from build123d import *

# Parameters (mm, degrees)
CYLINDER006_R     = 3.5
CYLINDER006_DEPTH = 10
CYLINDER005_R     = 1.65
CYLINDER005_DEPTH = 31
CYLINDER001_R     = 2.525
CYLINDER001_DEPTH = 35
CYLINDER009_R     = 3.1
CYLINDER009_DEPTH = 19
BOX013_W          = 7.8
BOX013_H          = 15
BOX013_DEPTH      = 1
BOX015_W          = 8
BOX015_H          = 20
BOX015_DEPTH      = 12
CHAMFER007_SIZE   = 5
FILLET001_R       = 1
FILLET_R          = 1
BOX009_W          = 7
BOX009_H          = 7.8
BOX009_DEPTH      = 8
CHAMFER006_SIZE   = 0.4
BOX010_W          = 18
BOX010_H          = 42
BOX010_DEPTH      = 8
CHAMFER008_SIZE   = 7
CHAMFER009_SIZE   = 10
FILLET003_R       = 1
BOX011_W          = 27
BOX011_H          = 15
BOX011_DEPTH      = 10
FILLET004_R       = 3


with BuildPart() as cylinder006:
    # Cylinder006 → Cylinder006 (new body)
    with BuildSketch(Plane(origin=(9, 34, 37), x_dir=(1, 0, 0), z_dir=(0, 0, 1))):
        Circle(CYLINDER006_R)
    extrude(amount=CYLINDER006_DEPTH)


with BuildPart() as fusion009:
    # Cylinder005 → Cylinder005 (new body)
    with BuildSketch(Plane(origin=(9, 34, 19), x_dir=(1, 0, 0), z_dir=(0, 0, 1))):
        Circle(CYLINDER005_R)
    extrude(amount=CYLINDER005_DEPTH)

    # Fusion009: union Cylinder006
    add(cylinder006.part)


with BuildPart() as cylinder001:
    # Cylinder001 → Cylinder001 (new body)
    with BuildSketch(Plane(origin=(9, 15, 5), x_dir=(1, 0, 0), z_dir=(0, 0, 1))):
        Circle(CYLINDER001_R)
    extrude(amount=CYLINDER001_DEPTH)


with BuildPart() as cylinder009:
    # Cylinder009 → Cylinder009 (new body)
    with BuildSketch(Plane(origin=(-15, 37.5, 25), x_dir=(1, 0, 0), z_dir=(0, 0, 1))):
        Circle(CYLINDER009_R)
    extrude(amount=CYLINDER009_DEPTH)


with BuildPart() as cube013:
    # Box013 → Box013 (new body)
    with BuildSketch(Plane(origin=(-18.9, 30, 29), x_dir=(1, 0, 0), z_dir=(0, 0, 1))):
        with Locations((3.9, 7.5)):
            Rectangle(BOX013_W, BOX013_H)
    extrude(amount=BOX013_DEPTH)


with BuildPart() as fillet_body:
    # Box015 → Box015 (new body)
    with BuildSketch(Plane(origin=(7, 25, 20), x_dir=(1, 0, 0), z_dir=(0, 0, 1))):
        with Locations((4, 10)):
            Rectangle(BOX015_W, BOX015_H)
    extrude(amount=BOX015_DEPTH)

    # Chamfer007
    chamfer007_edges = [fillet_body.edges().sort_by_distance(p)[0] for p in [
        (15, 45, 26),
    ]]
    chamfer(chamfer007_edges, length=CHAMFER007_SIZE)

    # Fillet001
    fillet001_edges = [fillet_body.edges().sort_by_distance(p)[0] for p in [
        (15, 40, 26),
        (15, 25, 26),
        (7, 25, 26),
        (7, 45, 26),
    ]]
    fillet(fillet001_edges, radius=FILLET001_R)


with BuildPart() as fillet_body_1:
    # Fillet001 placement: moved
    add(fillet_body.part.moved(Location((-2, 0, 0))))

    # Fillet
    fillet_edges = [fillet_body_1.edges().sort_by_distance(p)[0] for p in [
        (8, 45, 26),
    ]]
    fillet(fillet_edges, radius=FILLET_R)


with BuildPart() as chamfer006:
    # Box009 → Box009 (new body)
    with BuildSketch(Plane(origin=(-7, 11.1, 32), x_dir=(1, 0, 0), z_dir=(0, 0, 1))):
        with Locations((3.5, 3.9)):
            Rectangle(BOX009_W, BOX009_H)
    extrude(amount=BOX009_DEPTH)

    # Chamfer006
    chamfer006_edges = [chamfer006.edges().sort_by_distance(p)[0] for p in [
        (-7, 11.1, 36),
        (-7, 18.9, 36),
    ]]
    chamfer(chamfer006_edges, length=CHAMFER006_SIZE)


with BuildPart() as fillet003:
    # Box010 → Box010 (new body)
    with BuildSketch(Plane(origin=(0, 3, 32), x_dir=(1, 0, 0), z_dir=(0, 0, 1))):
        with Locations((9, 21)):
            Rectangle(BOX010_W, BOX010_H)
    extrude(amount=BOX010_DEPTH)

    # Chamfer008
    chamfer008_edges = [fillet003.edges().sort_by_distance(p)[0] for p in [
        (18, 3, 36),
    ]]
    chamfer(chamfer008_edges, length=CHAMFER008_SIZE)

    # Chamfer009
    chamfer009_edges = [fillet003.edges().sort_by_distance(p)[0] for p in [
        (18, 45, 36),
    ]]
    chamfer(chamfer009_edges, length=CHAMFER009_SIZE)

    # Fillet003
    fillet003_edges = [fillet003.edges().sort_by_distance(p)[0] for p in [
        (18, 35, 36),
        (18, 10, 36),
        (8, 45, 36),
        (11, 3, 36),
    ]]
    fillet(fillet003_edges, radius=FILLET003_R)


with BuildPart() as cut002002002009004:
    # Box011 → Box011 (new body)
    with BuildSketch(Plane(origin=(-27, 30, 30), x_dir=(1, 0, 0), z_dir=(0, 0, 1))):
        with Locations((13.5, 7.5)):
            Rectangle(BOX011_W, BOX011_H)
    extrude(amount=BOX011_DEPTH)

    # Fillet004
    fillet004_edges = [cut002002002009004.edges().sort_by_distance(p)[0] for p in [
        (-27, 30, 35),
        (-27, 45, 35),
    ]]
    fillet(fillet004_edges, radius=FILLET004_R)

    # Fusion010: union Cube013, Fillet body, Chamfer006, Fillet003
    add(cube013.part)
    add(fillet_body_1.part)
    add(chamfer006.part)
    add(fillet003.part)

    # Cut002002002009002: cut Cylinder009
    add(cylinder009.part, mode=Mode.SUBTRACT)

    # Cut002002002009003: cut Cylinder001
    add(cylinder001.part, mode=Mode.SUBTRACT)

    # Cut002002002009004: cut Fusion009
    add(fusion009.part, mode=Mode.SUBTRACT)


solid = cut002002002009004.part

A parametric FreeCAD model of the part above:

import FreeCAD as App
import Part
import Sketcher

V = App.Vector


def edges_at(feature, points):
    """Names of the edges that pass closest to the given points."""
    edges = feature.Shape.Edges
    near = lambda p: min(range(len(edges)), key=lambda i: edges[i].distToShape(Part.Vertex(*p))[0])
    return sorted({f"Edge{near(p) + 1}" for p in points})


def add_polygon(sketch, points):
    """Adds a closed chain of lines whose ends are joined by coincident constraints."""
    first, n = sketch.GeometryCount, len(points)
    for a, b in zip(points, points[1:] + points[:1]):
        sketch.addGeometry(Part.LineSegment(App.Vector(*a, 0), App.Vector(*b, 0)), False)
    for i in range(n):
        sketch.addConstraint(Sketcher.Constraint("Coincident", first + i, 2, first + (i + 1) % n, 1))

doc = App.newDocument("Part")
params = doc.addObject("Spreadsheet::Sheet", "Params")
for row, (alias, value) in enumerate([
    ("sketch1_diameter", "7 mm"),
    ("pad1_length", "10 mm"),
    ("sketch2_diameter", "3.3 mm"),
    ("pad2_length", "31 mm"),
    ("sketch3_diameter", "5.05 mm"),
    ("pad3_length", "35 mm"),
    ("sketch4_diameter", "6.2 mm"),
    ("pad4_length", "19 mm"),
    ("sketch5_height", "15 mm"),
    ("sketch5_width", "7.8 mm"),
    ("pad5_length", "1 mm"),
    ("sketch6_width", "8 mm"),
    ("sketch6_height", "20 mm"),
    ("pad6_length", "12 mm"),
    ("chamfer_size", "5 mm"),
    ("fillet_radius", "1 mm"),
    ("fillet2_radius", "1 mm"),
    ("sketch7_width", "7 mm"),
    ("sketch7_height", "7.8 mm"),
    ("pad7_length", "8 mm"),
    ("chamfer2_size", "0.4 mm"),
    ("sketch8_width", "18 mm"),
    ("sketch8_height", "42 mm"),
    ("pad8_length", "8 mm"),
    ("chamfer3_size", "7 mm"),
    ("chamfer4_size", "10 mm"),
    ("fillet3_radius", "1 mm"),
    ("sketch9_width", "27 mm"),
    ("sketch9_height", "15 mm"),
    ("pad9_length", "10 mm"),
    ("fillet4_radius", "3 mm"),
], start=1):
    params.set(f"A{row}", alias)
    params.set(f"B{row}", "=" + value)
    params.setAlias(f"B{row}", alias)

body = doc.addObject("PartDesign::Body", "Body")

sketch1 = body.newObject("Sketcher::SketchObject", "Sketch")
sketch1.AttachmentSupport = (doc.getObject("XY_Plane"), [""])
sketch1.MapMode = "FlatFace"
sketch1.AttachmentOffset = App.Placement(V(0, 0, 37), App.Rotation())
sketch1.addGeometry(Part.Circle(V(9, 34, 0), V(0, 0, 1), 3.5), False)
sketch1.addConstraint(Sketcher.Constraint("Diameter", 0, 7.0))
sketch1.addConstraint(Sketcher.Constraint("DistanceX", -1, 1, 0, 3, 9.0))
sketch1.addConstraint(Sketcher.Constraint("DistanceY", -1, 1, 0, 3, 34.0))
sketch1.setExpression("Constraints[0]", "Params.sketch1_diameter")
pad1 = body.newObject("PartDesign::Pad", "Pad")
pad1.Profile = sketch1
pad1.setExpression("Length", "Params.pad1_length")
body2 = doc.addObject("PartDesign::Body", "Body001")

sketch2 = body2.newObject("Sketcher::SketchObject", "Sketch001")
sketch2.AttachmentSupport = (doc.getObject("XY_Plane001"), [""])
sketch2.MapMode = "FlatFace"
sketch2.AttachmentOffset = App.Placement(V(0, 0, 19), App.Rotation())
sketch2.addGeometry(Part.Circle(V(9, 34, 0), V(0, 0, 1), 1.6), False)
sketch2.addConstraint(Sketcher.Constraint("Diameter", 0, 3.3))
sketch2.addConstraint(Sketcher.Constraint("DistanceX", -1, 1, 0, 3, 9.0))
sketch2.addConstraint(Sketcher.Constraint("DistanceY", -1, 1, 0, 3, 34.0))
sketch2.setExpression("Constraints[0]", "Params.sketch2_diameter")
pad2 = body2.newObject("PartDesign::Pad", "Pad001")
pad2.Profile = sketch2
pad2.setExpression("Length", "Params.pad2_length")
doc.recompute()

boolean = body2.newObject("PartDesign::Boolean", "Boolean")
boolean.Type = "Fuse"
boolean.addObjects([body])
body3 = doc.addObject("PartDesign::Body", "Body002")

sketch3 = body3.newObject("Sketcher::SketchObject", "Sketch002")
sketch3.AttachmentSupport = (doc.getObject("XY_Plane002"), [""])
sketch3.MapMode = "FlatFace"
sketch3.AttachmentOffset = App.Placement(V(0, 0, 5), App.Rotation())
sketch3.addGeometry(Part.Circle(V(9, 15, 0), V(0, 0, 1), 2.5), False)
sketch3.addConstraint(Sketcher.Constraint("Diameter", 0, 5.05))
sketch3.addConstraint(Sketcher.Constraint("DistanceX", -1, 1, 0, 3, 9.0))
sketch3.addConstraint(Sketcher.Constraint("DistanceY", -1, 1, 0, 3, 15.0))
sketch3.setExpression("Constraints[0]", "Params.sketch3_diameter")
pad3 = body3.newObject("PartDesign::Pad", "Pad002")
pad3.Profile = sketch3
pad3.setExpression("Length", "Params.pad3_length")
body4 = doc.addObject("PartDesign::Body", "Body003")

sketch4 = body4.newObject("Sketcher::SketchObject", "Sketch003")
sketch4.AttachmentSupport = (doc.getObject("XY_Plane003"), [""])
sketch4.MapMode = "FlatFace"
sketch4.AttachmentOffset = App.Placement(V(0, 0, 25), App.Rotation())
sketch4.addGeometry(Part.Circle(V(-15, 37.5, 0), V(0, 0, 1), 3.1), False)
sketch4.addConstraint(Sketcher.Constraint("Diameter", 0, 6.2))
sketch4.addConstraint(Sketcher.Constraint("DistanceX", 0, 3, -1, 1, 15.0))
sketch4.addConstraint(Sketcher.Constraint("DistanceY", -1, 1, 0, 3, 37.5))
sketch4.setExpression("Constraints[0]", "Params.sketch4_diameter")
pad4 = body4.newObject("PartDesign::Pad", "Pad003")
pad4.Profile = sketch4
pad4.setExpression("Length", "Params.pad4_length")
body5 = doc.addObject("PartDesign::Body", "Body004")

sketch5 = body5.newObject("Sketcher::SketchObject", "Sketch004")
sketch5.AttachmentSupport = (doc.getObject("XY_Plane004"), [""])
sketch5.MapMode = "FlatFace"
sketch5.AttachmentOffset = App.Placement(V(0, 0, 29), App.Rotation())
add_polygon(sketch5, [(-19, 45), (-19, 30), (-11, 30), (-11, 45)])
sketch5.addConstraint(Sketcher.Constraint("Vertical", 0))
sketch5.addConstraint(Sketcher.Constraint("Horizontal", 1))
sketch5.addConstraint(Sketcher.Constraint("Vertical", 2))
sketch5.addConstraint(Sketcher.Constraint("Horizontal", 3))
sketch5.addConstraint(Sketcher.Constraint("DistanceY", 0, 2, 0, 1, 15.0))
sketch5.addConstraint(Sketcher.Constraint("DistanceX", 1, 1, 1, 2, 7.8))
sketch5.addConstraint(Sketcher.Constraint("DistanceY", -1, 1, 0, 2, 30.0))
sketch5.addConstraint(Sketcher.Constraint("DistanceX", 0, 2, -1, 1, 18.9))
sketch5.setExpression("Constraints[8]", "Params.sketch5_height")
sketch5.setExpression("Constraints[9]", "Params.sketch5_width")
pad5 = body5.newObject("PartDesign::Pad", "Pad004")
pad5.Profile = sketch5
pad5.setExpression("Length", "Params.pad5_length")
body6 = doc.addObject("PartDesign::Body", "Body005")

sketch6 = body6.newObject("Sketcher::SketchObject", "Sketch005")
sketch6.AttachmentSupport = (doc.getObject("XY_Plane005"), [""])
sketch6.MapMode = "FlatFace"
sketch6.AttachmentOffset = App.Placement(V(0, 0, 20), App.Rotation())
add_polygon(sketch6, [(7, 45), (7, 25), (15, 25), (15, 45)])
sketch6.addConstraint(Sketcher.Constraint("Vertical", 0))
sketch6.addConstraint(Sketcher.Constraint("Horizontal", 1))
sketch6.addConstraint(Sketcher.Constraint("Vertical", 2))
sketch6.addConstraint(Sketcher.Constraint("Horizontal", 3))
sketch6.addConstraint(Sketcher.Constraint("DistanceX", 1, 1, 1, 2, 8.0))
sketch6.addConstraint(Sketcher.Constraint("DistanceY", 0, 2, 0, 1, 20.0))
sketch6.addConstraint(Sketcher.Constraint("DistanceX", -1, 1, 0, 2, 7.0))
sketch6.addConstraint(Sketcher.Constraint("DistanceY", -1, 1, 0, 2, 25.0))
sketch6.setExpression("Constraints[8]", "Params.sketch6_width")
sketch6.setExpression("Constraints[9]", "Params.sketch6_height")
pad6 = body6.newObject("PartDesign::Pad", "Pad005")
pad6.Profile = sketch6
pad6.setExpression("Length", "Params.pad6_length")
doc.recompute()

chamfer = body6.newObject("PartDesign::Chamfer", "Chamfer")
chamfer.Base = (pad6, edges_at(pad6, [(15, 45, 26)]))
chamfer.setExpression("Size", "Params.chamfer_size")
doc.recompute()

fillet = body6.newObject("PartDesign::Fillet", "Fillet")
fillet.Base = (chamfer, edges_at(chamfer, [
    (15, 40, 26),
    (15, 25, 26),
    (7, 25, 26),
    (7, 45, 26),
]))
fillet.setExpression("Radius", "Params.fillet_radius")
body7 = doc.addObject("PartDesign::Body", "Body006")
doc.recompute()

body6.Placement = App.Placement(V(-2, 0, 0), App.Rotation(V(0, 0, 1), 0))
boolean2 = body7.newObject("PartDesign::Boolean", "Boolean001")
boolean2.Type = "Fuse"
boolean2.addObjects([body6])
doc.recompute()

fillet2 = body7.newObject("PartDesign::Fillet", "Fillet001")
fillet2.Base = (boolean2, edges_at(boolean2, [(8, 45, 26)]))
fillet2.setExpression("Radius", "Params.fillet2_radius")
body8 = doc.addObject("PartDesign::Body", "Body007")

sketch7 = body8.newObject("Sketcher::SketchObject", "Sketch006")
sketch7.AttachmentSupport = (doc.getObject("XY_Plane007"), [""])
sketch7.MapMode = "FlatFace"
sketch7.AttachmentOffset = App.Placement(V(0, 0, 32), App.Rotation())
add_polygon(sketch7, [(-7, 19), (-7, 11), (0, 11), (0, 19)])
sketch7.addConstraint(Sketcher.Constraint("Vertical", 0))
sketch7.addConstraint(Sketcher.Constraint("Horizontal", 1))
sketch7.addConstraint(Sketcher.Constraint("Vertical", 2))
sketch7.addConstraint(Sketcher.Constraint("Horizontal", 3))
sketch7.addConstraint(Sketcher.Constraint("PointOnObject", 1, 2, -2))
sketch7.addConstraint(Sketcher.Constraint("DistanceX", 1, 1, 1, 2, 7.0))
sketch7.addConstraint(Sketcher.Constraint("DistanceY", 0, 2, 0, 1, 7.8))
sketch7.addConstraint(Sketcher.Constraint("DistanceY", -1, 1, 0, 2, 11.1))
sketch7.setExpression("Constraints[9]", "Params.sketch7_width")
sketch7.setExpression("Constraints[10]", "Params.sketch7_height")
pad7 = body8.newObject("PartDesign::Pad", "Pad006")
pad7.Profile = sketch7
pad7.setExpression("Length", "Params.pad7_length")
doc.recompute()

chamfer2 = body8.newObject("PartDesign::Chamfer", "Chamfer001")
chamfer2.Base = (pad7, edges_at(pad7, [(-7, 11.1, 36), (-7, 18.9, 36)]))
chamfer2.setExpression("Size", "Params.chamfer2_size")
body9 = doc.addObject("PartDesign::Body", "Body008")

sketch8 = body9.newObject("Sketcher::SketchObject", "Sketch007")
sketch8.AttachmentSupport = (doc.getObject("XY_Plane008"), [""])
sketch8.MapMode = "FlatFace"
sketch8.AttachmentOffset = App.Placement(V(0, 0, 32), App.Rotation())
add_polygon(sketch8, [(0, 45), (0, 3), (18, 3), (18, 45)])
sketch8.addConstraint(Sketcher.Constraint("Vertical", 0))
sketch8.addConstraint(Sketcher.Constraint("Horizontal", 1))
sketch8.addConstraint(Sketcher.Constraint("Vertical", 2))
sketch8.addConstraint(Sketcher.Constraint("Horizontal", 3))
sketch8.addConstraint(Sketcher.Constraint("PointOnObject", 0, 2, -2))
sketch8.addConstraint(Sketcher.Constraint("DistanceX", 1, 1, 1, 2, 18.0))
sketch8.addConstraint(Sketcher.Constraint("DistanceY", 0, 2, 0, 1, 42.0))
sketch8.addConstraint(Sketcher.Constraint("DistanceY", -1, 1, 0, 2, 3.0))
sketch8.setExpression("Constraints[9]", "Params.sketch8_width")
sketch8.setExpression("Constraints[10]", "Params.sketch8_height")
pad8 = body9.newObject("PartDesign::Pad", "Pad007")
pad8.Profile = sketch8
pad8.setExpression("Length", "Params.pad8_length")
doc.recompute()

chamfer3 = body9.newObject("PartDesign::Chamfer", "Chamfer002")
chamfer3.Base = (pad8, edges_at(pad8, [(18, 3, 36)]))
chamfer3.setExpression("Size", "Params.chamfer3_size")
doc.recompute()

chamfer4 = body9.newObject("PartDesign::Chamfer", "Chamfer003")
chamfer4.Base = (chamfer3, edges_at(chamfer3, [(18, 45, 36)]))
chamfer4.setExpression("Size", "Params.chamfer4_size")
doc.recompute()

fillet3 = body9.newObject("PartDesign::Fillet", "Fillet002")
fillet3.Base = (chamfer4, edges_at(chamfer4, [
    (18, 35, 36),
    (18, 10, 36),
    (8, 45, 36),
    (11, 3, 36),
]))
fillet3.setExpression("Radius", "Params.fillet3_radius")
body10 = doc.addObject("PartDesign::Body", "Body009")
body10.AllowCompound = True

sketch9 = body10.newObject("Sketcher::SketchObject", "Sketch008")
sketch9.AttachmentSupport = (doc.getObject("XY_Plane009"), [""])
sketch9.MapMode = "FlatFace"
sketch9.AttachmentOffset = App.Placement(V(0, 0, 30), App.Rotation())
add_polygon(sketch9, [(-27, 45), (-27, 30), (0, 30), (0, 45)])
sketch9.addConstraint(Sketcher.Constraint("Vertical", 0))
sketch9.addConstraint(Sketcher.Constraint("Horizontal", 1))
sketch9.addConstraint(Sketcher.Constraint("Vertical", 2))
sketch9.addConstraint(Sketcher.Constraint("Horizontal", 3))
sketch9.addConstraint(Sketcher.Constraint("PointOnObject", 1, 2, -2))
sketch9.addConstraint(Sketcher.Constraint("DistanceX", 1, 1, 1, 2, 27.0))
sketch9.addConstraint(Sketcher.Constraint("DistanceY", 0, 2, 0, 1, 15.0))
sketch9.addConstraint(Sketcher.Constraint("DistanceY", -1, 1, 0, 2, 30.0))
sketch9.setExpression("Constraints[9]", "Params.sketch9_width")
sketch9.setExpression("Constraints[10]", "Params.sketch9_height")
pad9 = body10.newObject("PartDesign::Pad", "Pad008")
pad9.Profile = sketch9
pad9.setExpression("Length", "Params.pad9_length")
doc.recompute()

fillet4 = body10.newObject("PartDesign::Fillet", "Fillet003")
fillet4.Base = (pad9, edges_at(pad9, [(-27, 30, 35), (-27, 45, 35)]))
fillet4.setExpression("Radius", "Params.fillet4_radius")
doc.recompute()

boolean3 = body10.newObject("PartDesign::Boolean", "Boolean002")
boolean3.Type = "Fuse"
boolean3.addObjects([body5])
doc.recompute()

boolean4 = body10.newObject("PartDesign::Boolean", "Boolean003")
boolean4.Type = "Fuse"
boolean4.addObjects([body7])
doc.recompute()

boolean5 = body10.newObject("PartDesign::Boolean", "Boolean004")
boolean5.Type = "Fuse"
boolean5.addObjects([body8])
doc.recompute()

boolean6 = body10.newObject("PartDesign::Boolean", "Boolean005")
boolean6.Type = "Fuse"
boolean6.addObjects([body9])
doc.recompute()

boolean7 = body10.newObject("PartDesign::Boolean", "Boolean006")
boolean7.Type = "Cut"
boolean7.addObjects([body4])
doc.recompute()

boolean8 = body10.newObject("PartDesign::Boolean", "Boolean007")
boolean8.Type = "Cut"
boolean8.addObjects([body3])
doc.recompute()

boolean9 = body10.newObject("PartDesign::Boolean", "Boolean008")
boolean9.Type = "Cut"
boolean9.addObjects([body2])

doc.recompute()
